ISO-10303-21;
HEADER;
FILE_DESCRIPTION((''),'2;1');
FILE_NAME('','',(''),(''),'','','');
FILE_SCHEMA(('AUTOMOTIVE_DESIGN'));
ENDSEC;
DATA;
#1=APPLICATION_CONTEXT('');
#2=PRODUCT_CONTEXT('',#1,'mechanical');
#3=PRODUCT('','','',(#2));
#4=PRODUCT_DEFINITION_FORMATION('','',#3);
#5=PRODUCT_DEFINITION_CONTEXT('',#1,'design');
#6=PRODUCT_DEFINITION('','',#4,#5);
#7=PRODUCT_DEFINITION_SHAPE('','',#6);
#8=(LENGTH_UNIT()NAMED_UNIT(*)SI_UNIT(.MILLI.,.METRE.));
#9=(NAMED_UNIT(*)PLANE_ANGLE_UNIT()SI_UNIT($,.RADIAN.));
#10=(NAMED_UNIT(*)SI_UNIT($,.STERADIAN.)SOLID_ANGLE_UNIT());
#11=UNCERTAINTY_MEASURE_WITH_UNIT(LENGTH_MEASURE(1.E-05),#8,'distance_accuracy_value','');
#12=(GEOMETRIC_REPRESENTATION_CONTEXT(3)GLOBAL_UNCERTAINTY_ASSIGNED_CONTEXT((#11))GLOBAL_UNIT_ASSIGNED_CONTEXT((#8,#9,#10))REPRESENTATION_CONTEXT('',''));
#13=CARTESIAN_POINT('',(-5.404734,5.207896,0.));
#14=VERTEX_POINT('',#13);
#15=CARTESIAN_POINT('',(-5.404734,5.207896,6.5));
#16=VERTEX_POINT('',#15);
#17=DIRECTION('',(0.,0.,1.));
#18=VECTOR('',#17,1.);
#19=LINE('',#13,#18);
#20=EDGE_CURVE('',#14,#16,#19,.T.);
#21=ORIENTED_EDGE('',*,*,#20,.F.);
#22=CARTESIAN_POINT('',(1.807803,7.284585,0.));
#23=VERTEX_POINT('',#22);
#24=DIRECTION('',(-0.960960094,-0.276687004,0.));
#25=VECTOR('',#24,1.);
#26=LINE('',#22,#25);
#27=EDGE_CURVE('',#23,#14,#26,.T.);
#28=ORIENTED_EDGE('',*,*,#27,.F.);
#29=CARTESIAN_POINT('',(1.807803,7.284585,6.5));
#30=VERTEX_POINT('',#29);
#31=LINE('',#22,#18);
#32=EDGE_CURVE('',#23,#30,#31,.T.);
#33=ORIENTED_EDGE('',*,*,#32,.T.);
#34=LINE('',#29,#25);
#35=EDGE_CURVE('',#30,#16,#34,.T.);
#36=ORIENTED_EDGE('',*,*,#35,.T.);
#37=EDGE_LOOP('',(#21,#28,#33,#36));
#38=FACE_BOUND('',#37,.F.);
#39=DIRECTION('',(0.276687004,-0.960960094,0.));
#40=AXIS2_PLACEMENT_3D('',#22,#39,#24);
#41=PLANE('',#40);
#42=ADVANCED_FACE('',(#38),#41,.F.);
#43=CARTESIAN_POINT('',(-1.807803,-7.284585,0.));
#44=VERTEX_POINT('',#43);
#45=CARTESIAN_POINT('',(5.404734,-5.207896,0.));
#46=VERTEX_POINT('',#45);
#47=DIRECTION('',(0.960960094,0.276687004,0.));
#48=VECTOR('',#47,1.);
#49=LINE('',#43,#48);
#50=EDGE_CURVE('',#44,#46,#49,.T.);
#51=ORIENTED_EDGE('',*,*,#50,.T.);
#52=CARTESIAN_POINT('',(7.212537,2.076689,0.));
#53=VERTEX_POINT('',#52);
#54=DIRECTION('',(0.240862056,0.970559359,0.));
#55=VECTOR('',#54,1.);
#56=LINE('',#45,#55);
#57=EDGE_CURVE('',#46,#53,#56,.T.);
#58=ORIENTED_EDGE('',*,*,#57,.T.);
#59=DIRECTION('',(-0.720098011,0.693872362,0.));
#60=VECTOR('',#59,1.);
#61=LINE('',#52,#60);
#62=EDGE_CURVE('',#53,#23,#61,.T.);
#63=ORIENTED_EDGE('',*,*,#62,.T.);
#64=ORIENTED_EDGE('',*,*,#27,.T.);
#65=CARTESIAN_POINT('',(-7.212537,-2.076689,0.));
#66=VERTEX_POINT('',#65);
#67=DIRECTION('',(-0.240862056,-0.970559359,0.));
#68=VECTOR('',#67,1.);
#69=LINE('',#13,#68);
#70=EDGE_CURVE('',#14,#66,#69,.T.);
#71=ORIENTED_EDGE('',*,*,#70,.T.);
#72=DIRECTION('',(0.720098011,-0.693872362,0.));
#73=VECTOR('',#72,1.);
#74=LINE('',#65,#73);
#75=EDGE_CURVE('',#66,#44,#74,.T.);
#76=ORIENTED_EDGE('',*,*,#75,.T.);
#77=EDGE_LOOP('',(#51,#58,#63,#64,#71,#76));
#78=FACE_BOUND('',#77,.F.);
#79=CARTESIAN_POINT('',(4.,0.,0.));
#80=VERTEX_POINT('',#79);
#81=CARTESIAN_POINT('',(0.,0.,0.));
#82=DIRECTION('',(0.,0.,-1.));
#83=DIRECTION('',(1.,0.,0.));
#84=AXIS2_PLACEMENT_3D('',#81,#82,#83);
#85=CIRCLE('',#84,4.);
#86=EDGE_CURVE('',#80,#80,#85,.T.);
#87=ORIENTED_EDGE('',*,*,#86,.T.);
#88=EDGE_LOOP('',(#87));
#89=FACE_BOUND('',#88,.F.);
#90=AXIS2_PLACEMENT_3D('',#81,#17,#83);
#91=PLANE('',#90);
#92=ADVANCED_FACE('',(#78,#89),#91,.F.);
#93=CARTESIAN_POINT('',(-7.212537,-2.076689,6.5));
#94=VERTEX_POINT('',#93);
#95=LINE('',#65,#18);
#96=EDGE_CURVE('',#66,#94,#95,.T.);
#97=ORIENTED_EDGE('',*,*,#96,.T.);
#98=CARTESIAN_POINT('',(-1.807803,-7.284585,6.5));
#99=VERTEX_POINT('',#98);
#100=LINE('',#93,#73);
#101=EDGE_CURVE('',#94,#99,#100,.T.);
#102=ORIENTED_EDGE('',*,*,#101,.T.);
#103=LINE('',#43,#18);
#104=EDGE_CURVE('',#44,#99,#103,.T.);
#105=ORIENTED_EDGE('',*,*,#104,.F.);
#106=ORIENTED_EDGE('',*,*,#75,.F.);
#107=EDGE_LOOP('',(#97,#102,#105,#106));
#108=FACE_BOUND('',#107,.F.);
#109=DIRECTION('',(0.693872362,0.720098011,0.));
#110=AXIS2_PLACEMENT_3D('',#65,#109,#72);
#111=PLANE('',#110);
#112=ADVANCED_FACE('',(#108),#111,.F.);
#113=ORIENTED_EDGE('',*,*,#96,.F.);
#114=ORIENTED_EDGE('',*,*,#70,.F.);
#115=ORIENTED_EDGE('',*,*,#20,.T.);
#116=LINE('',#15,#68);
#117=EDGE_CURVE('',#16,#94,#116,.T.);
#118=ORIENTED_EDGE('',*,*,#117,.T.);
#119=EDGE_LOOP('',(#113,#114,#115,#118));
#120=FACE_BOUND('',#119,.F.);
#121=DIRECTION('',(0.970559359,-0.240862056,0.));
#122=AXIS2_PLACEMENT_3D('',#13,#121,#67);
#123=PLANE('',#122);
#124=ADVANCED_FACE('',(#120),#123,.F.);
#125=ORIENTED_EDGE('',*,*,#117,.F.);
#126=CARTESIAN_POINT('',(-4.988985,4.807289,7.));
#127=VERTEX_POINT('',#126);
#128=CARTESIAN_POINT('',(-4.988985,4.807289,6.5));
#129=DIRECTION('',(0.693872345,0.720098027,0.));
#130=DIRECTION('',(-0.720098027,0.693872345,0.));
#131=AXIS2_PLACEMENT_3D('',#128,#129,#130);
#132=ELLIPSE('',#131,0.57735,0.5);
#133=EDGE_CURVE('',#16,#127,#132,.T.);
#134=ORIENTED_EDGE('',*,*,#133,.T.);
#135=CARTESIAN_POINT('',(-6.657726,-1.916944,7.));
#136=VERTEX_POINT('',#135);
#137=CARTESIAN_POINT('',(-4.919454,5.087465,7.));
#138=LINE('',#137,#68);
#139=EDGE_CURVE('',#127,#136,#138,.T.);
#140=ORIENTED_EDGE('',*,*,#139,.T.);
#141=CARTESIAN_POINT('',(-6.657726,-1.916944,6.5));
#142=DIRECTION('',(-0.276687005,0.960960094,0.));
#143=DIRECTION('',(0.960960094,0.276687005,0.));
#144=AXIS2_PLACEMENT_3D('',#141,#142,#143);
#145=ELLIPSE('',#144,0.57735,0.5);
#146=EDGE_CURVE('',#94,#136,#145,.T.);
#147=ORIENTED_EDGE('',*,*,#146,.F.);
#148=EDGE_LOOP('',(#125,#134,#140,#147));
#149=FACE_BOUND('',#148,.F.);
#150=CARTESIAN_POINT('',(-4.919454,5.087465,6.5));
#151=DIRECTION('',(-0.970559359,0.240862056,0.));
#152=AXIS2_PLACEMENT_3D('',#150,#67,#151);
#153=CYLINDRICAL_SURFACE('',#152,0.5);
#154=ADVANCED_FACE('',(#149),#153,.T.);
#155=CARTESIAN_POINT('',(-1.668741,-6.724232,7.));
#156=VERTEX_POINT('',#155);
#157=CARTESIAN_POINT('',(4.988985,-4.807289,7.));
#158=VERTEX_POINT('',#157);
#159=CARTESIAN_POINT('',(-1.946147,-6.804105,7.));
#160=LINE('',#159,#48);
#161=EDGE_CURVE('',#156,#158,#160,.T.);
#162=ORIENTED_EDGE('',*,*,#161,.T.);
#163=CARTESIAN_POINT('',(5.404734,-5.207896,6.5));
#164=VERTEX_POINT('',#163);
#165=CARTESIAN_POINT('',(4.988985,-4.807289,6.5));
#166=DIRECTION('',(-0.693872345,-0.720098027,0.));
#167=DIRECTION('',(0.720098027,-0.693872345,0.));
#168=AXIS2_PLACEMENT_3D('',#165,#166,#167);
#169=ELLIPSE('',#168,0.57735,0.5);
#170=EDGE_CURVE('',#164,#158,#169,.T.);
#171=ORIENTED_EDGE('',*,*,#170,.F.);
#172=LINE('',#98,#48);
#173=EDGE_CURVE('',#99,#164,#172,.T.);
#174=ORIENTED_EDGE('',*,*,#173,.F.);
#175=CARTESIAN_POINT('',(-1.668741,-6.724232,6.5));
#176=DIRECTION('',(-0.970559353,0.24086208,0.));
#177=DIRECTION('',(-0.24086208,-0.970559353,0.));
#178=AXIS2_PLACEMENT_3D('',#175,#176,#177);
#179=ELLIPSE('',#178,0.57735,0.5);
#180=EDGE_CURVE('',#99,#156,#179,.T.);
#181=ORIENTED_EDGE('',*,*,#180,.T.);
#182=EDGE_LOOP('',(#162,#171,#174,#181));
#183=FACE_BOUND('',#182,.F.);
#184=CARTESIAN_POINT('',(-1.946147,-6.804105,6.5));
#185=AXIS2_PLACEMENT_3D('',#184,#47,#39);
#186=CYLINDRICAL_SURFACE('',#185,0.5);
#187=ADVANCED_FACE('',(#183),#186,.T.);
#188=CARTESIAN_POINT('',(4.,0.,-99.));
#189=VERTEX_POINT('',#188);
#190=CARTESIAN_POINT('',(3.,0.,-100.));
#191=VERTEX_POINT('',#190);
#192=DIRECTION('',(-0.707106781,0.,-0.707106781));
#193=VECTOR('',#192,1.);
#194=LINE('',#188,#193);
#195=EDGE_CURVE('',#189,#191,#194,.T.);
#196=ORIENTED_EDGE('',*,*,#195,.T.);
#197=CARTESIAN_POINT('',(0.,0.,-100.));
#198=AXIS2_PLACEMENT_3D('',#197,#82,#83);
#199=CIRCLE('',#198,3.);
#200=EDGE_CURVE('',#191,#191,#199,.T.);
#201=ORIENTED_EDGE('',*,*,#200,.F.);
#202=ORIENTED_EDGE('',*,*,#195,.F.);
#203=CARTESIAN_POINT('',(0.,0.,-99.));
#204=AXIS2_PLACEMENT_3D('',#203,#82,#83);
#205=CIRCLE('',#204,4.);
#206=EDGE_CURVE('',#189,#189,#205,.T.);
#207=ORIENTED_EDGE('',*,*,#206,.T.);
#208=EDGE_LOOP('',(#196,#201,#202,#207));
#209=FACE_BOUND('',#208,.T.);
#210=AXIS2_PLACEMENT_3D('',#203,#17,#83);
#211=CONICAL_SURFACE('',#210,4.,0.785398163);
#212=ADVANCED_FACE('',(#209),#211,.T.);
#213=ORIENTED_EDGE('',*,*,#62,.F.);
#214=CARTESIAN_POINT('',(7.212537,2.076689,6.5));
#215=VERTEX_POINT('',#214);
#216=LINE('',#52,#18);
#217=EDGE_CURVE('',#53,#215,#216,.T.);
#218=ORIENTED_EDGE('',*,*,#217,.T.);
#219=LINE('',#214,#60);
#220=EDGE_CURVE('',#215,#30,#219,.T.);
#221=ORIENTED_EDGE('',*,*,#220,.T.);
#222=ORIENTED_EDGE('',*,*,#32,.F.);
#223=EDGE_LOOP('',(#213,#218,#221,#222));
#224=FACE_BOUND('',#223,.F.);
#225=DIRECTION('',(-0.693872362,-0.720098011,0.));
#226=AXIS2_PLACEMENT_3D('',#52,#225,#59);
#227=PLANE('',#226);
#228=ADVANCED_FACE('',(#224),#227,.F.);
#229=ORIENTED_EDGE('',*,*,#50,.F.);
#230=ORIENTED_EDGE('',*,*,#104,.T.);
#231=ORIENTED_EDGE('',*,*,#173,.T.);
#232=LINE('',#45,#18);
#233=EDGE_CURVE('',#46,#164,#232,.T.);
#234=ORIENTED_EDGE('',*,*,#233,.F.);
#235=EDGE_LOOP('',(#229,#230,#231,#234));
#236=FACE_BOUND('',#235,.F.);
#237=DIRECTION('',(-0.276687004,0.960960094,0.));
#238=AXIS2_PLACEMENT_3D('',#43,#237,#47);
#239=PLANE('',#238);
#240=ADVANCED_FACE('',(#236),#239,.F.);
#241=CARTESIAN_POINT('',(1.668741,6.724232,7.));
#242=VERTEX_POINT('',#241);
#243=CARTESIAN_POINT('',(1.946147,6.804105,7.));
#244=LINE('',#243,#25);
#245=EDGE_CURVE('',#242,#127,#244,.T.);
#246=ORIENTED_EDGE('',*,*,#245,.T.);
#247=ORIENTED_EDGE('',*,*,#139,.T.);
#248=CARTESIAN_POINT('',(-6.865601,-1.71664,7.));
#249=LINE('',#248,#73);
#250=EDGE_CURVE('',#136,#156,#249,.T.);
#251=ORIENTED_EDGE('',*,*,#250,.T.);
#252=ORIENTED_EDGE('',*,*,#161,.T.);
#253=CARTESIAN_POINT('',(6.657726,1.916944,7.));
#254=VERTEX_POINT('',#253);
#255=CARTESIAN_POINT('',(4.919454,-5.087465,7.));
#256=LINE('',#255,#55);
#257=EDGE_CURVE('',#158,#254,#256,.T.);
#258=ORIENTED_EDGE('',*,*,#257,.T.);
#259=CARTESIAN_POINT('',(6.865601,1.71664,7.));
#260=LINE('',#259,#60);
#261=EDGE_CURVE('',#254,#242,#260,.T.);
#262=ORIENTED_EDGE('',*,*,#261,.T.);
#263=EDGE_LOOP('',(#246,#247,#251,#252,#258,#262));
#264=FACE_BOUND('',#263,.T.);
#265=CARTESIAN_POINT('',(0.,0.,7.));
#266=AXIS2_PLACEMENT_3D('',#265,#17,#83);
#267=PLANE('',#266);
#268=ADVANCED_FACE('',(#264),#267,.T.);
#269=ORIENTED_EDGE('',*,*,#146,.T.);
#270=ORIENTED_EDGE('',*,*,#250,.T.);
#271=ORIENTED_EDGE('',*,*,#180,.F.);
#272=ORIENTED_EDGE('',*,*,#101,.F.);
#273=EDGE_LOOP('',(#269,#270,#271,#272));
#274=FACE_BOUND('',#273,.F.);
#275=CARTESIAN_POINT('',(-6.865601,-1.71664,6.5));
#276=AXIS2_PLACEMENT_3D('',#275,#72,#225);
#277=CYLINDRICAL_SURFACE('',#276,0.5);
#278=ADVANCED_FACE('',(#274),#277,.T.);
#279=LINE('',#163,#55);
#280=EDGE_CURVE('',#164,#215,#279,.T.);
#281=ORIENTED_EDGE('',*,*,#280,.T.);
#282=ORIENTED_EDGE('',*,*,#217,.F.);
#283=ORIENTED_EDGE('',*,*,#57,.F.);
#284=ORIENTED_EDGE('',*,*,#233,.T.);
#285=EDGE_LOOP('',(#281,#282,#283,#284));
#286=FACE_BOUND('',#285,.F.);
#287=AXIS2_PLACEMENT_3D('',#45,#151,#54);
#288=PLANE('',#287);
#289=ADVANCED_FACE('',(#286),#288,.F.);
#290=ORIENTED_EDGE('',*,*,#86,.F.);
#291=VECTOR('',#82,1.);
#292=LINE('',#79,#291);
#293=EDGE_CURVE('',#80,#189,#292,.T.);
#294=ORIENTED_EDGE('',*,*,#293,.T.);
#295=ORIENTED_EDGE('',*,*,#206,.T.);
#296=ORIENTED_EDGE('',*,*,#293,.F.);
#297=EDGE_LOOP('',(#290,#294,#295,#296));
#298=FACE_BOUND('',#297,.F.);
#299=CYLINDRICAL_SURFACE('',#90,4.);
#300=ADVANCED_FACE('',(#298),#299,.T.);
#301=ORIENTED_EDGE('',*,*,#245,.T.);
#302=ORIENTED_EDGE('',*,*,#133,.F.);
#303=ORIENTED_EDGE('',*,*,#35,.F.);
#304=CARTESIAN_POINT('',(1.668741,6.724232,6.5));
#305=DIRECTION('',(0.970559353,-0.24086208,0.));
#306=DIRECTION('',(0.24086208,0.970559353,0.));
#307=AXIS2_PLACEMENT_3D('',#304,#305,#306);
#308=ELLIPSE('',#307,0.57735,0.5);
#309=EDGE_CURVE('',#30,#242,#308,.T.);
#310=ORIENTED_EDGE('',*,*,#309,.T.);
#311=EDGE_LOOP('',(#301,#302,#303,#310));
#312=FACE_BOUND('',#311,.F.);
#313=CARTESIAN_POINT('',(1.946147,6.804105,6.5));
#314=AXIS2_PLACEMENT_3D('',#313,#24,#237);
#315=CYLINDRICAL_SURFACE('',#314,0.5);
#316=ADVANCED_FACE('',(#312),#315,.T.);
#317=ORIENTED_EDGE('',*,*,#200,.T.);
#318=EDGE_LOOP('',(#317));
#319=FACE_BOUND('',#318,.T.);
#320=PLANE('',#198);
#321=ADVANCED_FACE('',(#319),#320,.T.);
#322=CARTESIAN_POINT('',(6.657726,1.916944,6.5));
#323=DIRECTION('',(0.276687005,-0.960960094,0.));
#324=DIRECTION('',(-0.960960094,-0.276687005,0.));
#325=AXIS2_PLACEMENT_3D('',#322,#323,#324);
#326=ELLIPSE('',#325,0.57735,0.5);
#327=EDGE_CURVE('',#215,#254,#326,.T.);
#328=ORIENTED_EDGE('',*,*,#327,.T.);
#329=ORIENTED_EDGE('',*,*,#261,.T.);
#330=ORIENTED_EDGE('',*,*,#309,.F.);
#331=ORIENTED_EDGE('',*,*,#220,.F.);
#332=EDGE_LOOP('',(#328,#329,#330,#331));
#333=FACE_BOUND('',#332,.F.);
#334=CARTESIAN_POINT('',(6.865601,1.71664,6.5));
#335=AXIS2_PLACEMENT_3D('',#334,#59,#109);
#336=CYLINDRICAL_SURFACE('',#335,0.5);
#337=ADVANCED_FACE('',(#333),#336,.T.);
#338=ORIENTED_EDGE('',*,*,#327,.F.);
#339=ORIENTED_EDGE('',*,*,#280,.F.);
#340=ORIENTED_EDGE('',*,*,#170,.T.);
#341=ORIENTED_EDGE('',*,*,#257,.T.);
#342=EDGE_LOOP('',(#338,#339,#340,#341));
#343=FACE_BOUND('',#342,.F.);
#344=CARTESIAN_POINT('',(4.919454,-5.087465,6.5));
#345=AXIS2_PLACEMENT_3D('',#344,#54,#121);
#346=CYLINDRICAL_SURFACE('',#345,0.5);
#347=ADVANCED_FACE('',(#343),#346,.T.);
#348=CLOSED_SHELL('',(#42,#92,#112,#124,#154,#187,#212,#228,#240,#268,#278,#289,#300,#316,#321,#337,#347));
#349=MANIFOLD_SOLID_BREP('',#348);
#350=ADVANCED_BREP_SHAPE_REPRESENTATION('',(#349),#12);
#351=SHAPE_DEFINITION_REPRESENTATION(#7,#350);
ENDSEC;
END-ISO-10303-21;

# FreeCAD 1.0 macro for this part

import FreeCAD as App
import Part
import Sketcher
from FreeCAD import Vector


def edges_at(feature, points):
    """Names of the edges that pass closest to the given points."""
    edges = feature.Shape.Edges
    near = lambda p: min(range(len(edges)), key=lambda i: edges[i].distToShape(Part.Vertex(*p))[0])
    return sorted({f"Edge{near(p) + 1}" for p in points})

doc = App.newDocument("Part")
body = doc.addObject("PartDesign::Body", "Body")

# Sketch on XY plane
sketch1 = body.newObject("Sketcher::SketchObject", "Sketch")
sketch1.AttachmentSupport = (doc.getObject("XY_Plane"), [""])
sketch1.MapMode = "FlatFace"
sketch1.addGeometry([
    Part.LineSegment(Vector(2, 7, 0), Vector(-5, 5, 0)),  # 0
    Part.LineSegment(Vector(-5, 5, 0), Vector(-7, -2, 0)),  # 1
    Part.LineSegment(Vector(-7, -2, 0), Vector(-2, -7, 0)),  # 2
    Part.LineSegment(Vector(-2, -7, 0), Vector(5, -5, 0)),  # 3
    Part.LineSegment(Vector(5, -5, 0), Vector(7, 2, 0)),  # 4
    Part.LineSegment(Vector(7, 2, 0), Vector(2, 7, 0)),  # 5
], False)
sketch1.addConstraint([
    Sketcher.Constraint("Coincident", 0, 2, 1, 1),
    Sketcher.Constraint("Coincident", 1, 2, 2, 1),
    Sketcher.Constraint("Coincident", 2, 2, 3, 1),
    Sketcher.Constraint("Coincident", 3, 2, 4, 1),
    Sketcher.Constraint("Coincident", 4, 2, 5, 1),
    Sketcher.Constraint("Coincident", 5, 2, 0, 1),
    Sketcher.Constraint("Symmetric", 0, 2, 3, 2, -1, 1),
    Sketcher.Constraint("Symmetric", 1, 2, 4, 2, -1, 1),
    Sketcher.Constraint("Symmetric", 2, 2, 5, 2, -1, 1),
    Sketcher.Constraint("Equal", 0, 1),
    Sketcher.Constraint("Equal", 1, 2),
    Sketcher.Constraint("DistanceY", 1, 2, -1, 1, 2.076689),
    Sketcher.Constraint("DistanceX", 0, 2, 2, 2, 3.596931),
    Sketcher.Constraint("DistanceY", 2, 2, 0, 2, 12.492481),
    Sketcher.Constraint("DistanceY", 2, 2, 3, 2, 2.076689),
])
pad1 = body.newObject("PartDesign::Pad", "Pad")
pad1.Profile = sketch1
pad1.Length = 7
doc.recompute()

fillet = body.newObject("PartDesign::Fillet", "Fillet")
fillet.Base = (pad1, edges_at(pad1, [
    (-4.51, -4.681, 7),
    (1.798, -6.246, 7),
    (4.51, 4.681, 7),
    (-1.798, 6.246, 7),
    (-6.309, 1.566, 7),
    (6.309, -1.566, 7),
]))
fillet.Radius = 0.5

# Sketch on XY plane
sketch2 = body.newObject("Sketcher::SketchObject", "Sketch001")
sketch2.AttachmentSupport = (doc.getObject("XY_Plane"), [""])
sketch2.MapMode = "FlatFace"
sketch2.addGeometry(Part.Circle(Vector(0, 0, 0), Vector(0, 0, 1), 4), False)
sketch2.addConstraint([
    Sketcher.Constraint("Coincident", 0, 3, -1, 1),
    Sketcher.Constraint("Diameter", 0, 8.0),
])
pad2 = body.newObject("PartDesign::Pad", "Pad001")
pad2.Profile = sketch2
pad2.Length = 100
pad2.Reversed = True
doc.recompute()

chamfer = body.newObject("PartDesign::Chamfer", "Chamfer")
chamfer.Base = (pad2, edges_at(pad2, [(-4, 0, -100)]))
chamfer.Size = 1

doc.recompute()
